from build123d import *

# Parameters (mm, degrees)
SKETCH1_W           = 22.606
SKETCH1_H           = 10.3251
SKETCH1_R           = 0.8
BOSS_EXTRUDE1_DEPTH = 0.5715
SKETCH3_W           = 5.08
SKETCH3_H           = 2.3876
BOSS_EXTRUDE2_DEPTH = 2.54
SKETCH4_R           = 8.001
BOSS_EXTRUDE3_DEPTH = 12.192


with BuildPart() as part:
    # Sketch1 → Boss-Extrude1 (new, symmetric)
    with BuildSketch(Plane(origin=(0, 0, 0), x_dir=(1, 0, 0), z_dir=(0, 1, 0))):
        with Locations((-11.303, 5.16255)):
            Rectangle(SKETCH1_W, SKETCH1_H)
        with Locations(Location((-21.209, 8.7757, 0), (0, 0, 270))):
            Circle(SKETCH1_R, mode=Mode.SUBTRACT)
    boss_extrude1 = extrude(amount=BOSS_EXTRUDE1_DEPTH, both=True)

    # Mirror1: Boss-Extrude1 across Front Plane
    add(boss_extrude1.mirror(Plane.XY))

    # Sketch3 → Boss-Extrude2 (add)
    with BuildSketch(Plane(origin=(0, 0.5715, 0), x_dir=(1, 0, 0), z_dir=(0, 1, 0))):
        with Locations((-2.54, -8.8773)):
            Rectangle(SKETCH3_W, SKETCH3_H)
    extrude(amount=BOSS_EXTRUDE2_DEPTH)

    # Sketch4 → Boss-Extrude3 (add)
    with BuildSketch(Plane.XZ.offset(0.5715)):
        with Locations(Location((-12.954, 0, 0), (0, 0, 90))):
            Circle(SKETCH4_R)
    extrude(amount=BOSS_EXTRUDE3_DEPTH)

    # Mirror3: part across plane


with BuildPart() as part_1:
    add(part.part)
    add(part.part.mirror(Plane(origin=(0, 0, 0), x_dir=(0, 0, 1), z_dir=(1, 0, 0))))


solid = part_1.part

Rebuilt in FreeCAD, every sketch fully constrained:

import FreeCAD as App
import Part
import Sketcher
from FreeCAD import Vector
Q = App.Units.Quantity

doc = App.newDocument("Part")
params = doc.addObject("Spreadsheet::Sheet", "Params")
for row, (alias, value) in enumerate([
    ("sketch1_width", "0.89 in"),
    ("pad1_length", "0.045 in"),
    ("sketch2_width", "0.2 in"),
    ("sketch2_height", "0.094 in"),
    ("pad2_length", "0.1 in"),
    ("sketch3_diameter", "0.63 in"),
    ("pad3_length", "0.48 in"),
], start=1):
    params.set(f"A{row}", alias)
    params.set(f"B{row}", "=" + value)
    params.setAlias(f"B{row}", alias)

body = doc.addObject("PartDesign::Body", "Body")

# Sketch on XZ plane
sketch1 = body.newObject("Sketcher::SketchObject", "Sketch")
sketch1.AttachmentSupport = (doc.getObject("XZ_Plane"), [""])
sketch1.MapMode = "FlatFace"
sketch1.addGeometry([
    Part.LineSegment(Vector(-22.6, -10.3, 0), Vector(-22.6, 0, 0)),  # 0
    Part.LineSegment(Vector(-22.6, 0, 0), Vector(0, 0, 0)),  # 1
    Part.LineSegment(Vector(0, 0, 0), Vector(0, -10.3, 0)),  # 2
    Part.LineSegment(Vector(0, -10.3, 0), Vector(-22.6, -10.3, 0)),  # 3
    Part.Circle(Vector(-21.2, -8.8, 0), Vector(0, 0, 1), 0.8),  # 4
], False)
sketch1.addConstraint([
    Sketcher.Constraint("Coincident", 0, 2, 1, 1),
    Sketcher.Constraint("Coincident", 1, 2, 2, 1),
    Sketcher.Constraint("Coincident", 2, 2, 3, 1),
    Sketcher.Constraint("Coincident", 3, 2, 0, 1),
    Sketcher.Constraint("Vertical", 0),
    Sketcher.Constraint("Horizontal", 1),
    Sketcher.Constraint("Vertical", 2),
    Sketcher.Constraint("Horizontal", 3),
    Sketcher.Constraint("Coincident", 1, 2, -1, 1),
    Sketcher.Constraint("DistanceX", 1, 1, 1, 2, Q("0.89 in")),
    Sketcher.Constraint("Diameter", 4, Q("1.6 mm")),
    Sketcher.Constraint("DistanceY", 0, 1, 0, 2, Q("0.4065 in")),
    Sketcher.Constraint("DistanceX", 4, 3, -1, 1, Q("0.835 in")),
    Sketcher.Constraint("DistanceY", 2, 2, 4, 3, Q("0.061 in")),
])
sketch1.setExpression("Constraints[9]", "Params.sketch1_width")
pad1 = body.newObject("PartDesign::Pad", "Pad")
pad1.Profile = sketch1
pad1.setExpression("Length", "Params.pad1_length")
pad1.Midplane = True
doc.recompute()

mirrored = body.newObject("PartDesign::Mirrored", "Mirrored")
mirrored.Originals = [pad1]
mirrored.MirrorPlane = (doc.getObject("XY_Plane"), [""])
body.Tip = mirrored

# Sketch on XZ plane
sketch2 = body.newObject("Sketcher::SketchObject", "Sketch001")
sketch2.AttachmentSupport = (doc.getObject("XZ_Plane"), [""])
sketch2.MapMode = "FlatFace"
sketch2.AttachmentOffset = App.Placement(Vector(0, 0, -0.0225 * 25.4), App.Rotation())
sketch2.addGeometry([
    Part.LineSegment(Vector(-5.1, 7.7, 0), Vector(-5.1, 10.1, 0)),
    Part.LineSegment(Vector(-5.1, 10.1, 0), Vector(0, 10.1, 0)),
    Part.LineSegment(Vector(0, 10.1, 0), Vector(0, 7.7, 0)),
    Part.LineSegment(Vector(0, 7.7, 0), Vector(-5.1, 7.7, 0)),
], False)
sketch2.addConstraint([
    Sketcher.Constraint("Coincident", 0, 2, 1, 1),
    Sketcher.Constraint("Coincident", 1, 2, 2, 1),
    Sketcher.Constraint("Coincident", 2, 2, 3, 1),
    Sketcher.Constraint("Coincident", 3, 2, 0, 1),
    Sketcher.Constraint("Vertical", 0),
    Sketcher.Constraint("Horizontal", 1),
    Sketcher.Constraint("Vertical", 2),
    Sketcher.Constraint("Horizontal", 3),
    Sketcher.Constraint("PointOnObject", 1, 2, -2),
    Sketcher.Constraint("DistanceX", 1, 1, 1, 2, Q("0.2 in")),
    Sketcher.Constraint("DistanceY", 0, 1, 0, 2, Q("0.094 in")),
    Sketcher.Constraint("DistanceY", -1, 1, 0, 2, Q("0.3965 in")),
])
sketch2.setExpression("Constraints[9]", "Params.sketch2_width")
sketch2.setExpression("Constraints[10]", "Params.sketch2_height")
pad2 = body.newObject("PartDesign::Pad", "Pad001")
pad2.Profile = sketch2
pad2.setExpression("Length", "Params.pad2_length")
pad2.Reversed = True

# Sketch on XZ plane
sketch3 = body.newObject("Sketcher::SketchObject", "Sketch002")
sketch3.AttachmentSupport = (doc.getObject("XZ_Plane"), [""])
sketch3.MapMode = "FlatFace"
sketch3.AttachmentOffset = App.Placement(Vector(0, 0, 0.0225 * 25.4), App.Rotation())
sketch3.addGeometry(Part.Circle(Vector(-13, 0, 0), Vector(0, 0, 1), 8), False)
sketch3.addConstraint([
    Sketcher.Constraint("PointOnObject", 0, 3, -1),
    Sketcher.Constraint("Diameter", 0, Q("0.63 in")),
    Sketcher.Constraint("DistanceX", 0, 3, -1, 1, Q("0.51 in")),
])
sketch3.setExpression("Constraints[1]", "Params.sketch3_diameter")
pad3 = body.newObject("PartDesign::Pad", "Pad002")
pad3.Profile = sketch3
pad3.setExpression("Length", "Params.pad3_length")
body2 = doc.addObject("PartDesign::Body", "Body001")
doc.recompute()

body2.BaseFeature = body
doc.recompute()

mirroring = doc.addObject("Part::Mirroring", "Mirroring")
mirroring.Source = body
mirroring.Base = Vector(0, 0, 0)
mirroring.Normal = Vector(1, 0, 0)
body3 = doc.addObject("PartDesign::Body", "Body002")
body3.BaseFeature = mirroring
boolean = body2.newObject("PartDesign::Boolean", "Boolean")
boolean.Type = "Fuse"
boolean.addObjects([body3])
doc.recompute()
mirroring.Visibility = False

doc.recompute()
